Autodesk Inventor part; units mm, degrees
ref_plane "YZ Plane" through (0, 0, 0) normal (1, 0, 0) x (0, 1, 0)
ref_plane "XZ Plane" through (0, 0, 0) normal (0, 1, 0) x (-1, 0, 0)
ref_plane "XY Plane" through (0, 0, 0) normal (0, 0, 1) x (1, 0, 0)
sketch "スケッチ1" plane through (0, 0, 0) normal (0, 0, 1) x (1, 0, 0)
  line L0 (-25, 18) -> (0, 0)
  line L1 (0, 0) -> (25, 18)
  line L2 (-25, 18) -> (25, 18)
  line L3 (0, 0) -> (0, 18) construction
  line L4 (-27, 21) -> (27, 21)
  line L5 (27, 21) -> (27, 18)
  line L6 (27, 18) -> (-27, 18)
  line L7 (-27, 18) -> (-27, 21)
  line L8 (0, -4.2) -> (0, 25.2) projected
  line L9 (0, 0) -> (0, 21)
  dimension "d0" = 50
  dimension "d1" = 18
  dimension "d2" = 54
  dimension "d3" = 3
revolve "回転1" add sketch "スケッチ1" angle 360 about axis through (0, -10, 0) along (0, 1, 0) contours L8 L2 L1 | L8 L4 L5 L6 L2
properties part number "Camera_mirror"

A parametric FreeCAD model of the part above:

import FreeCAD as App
import Part
import Sketcher
Q = App.Units.Quantity


def add_polygon(sketch, points):
    """Adds a closed chain of lines whose ends are joined by coincident constraints."""
    first, n = sketch.GeometryCount, len(points)
    for a, b in zip(points, points[1:] + points[:1]):
        sketch.addGeometry(Part.LineSegment(App.Vector(*a, 0), App.Vector(*b, 0)), False)
    for i in range(n):
        sketch.addConstraint(Sketcher.Constraint("Coincident", first + i, 2, first + (i + 1) % n, 1))

doc = App.newDocument("Part")
body = doc.addObject("PartDesign::Body", "Body")

sketch1 = body.newObject("Sketcher::SketchObject", "Sketch")
sketch1.AttachmentSupport = (doc.getObject("XY_Plane"), [""])
sketch1.MapMode = "FlatFace"
add_polygon(sketch1, [(0, 0), (25, 18), (27, 18), (27, 21), (0, 21)])
sketch1.addConstraint(Sketcher.Constraint("Horizontal", 1))
sketch1.addConstraint(Sketcher.Constraint("Vertical", 2))
sketch1.addConstraint(Sketcher.Constraint("Horizontal", 3))
sketch1.addConstraint(Sketcher.Constraint("Vertical", 4))
sketch1.addConstraint(Sketcher.Constraint("Coincident", 4, 2, -1, 1))
sketch1.addConstraint(Sketcher.Constraint("DistanceY", 2, 1, 2, 2, Q("3 mm")))
sketch1.addConstraint(Sketcher.Constraint("DistanceY", -1, 1, 0, 2, Q("18 mm")))
sketch1.addConstraint(Sketcher.Constraint("DistanceX", 1, 1, 1, 2, Q("2 mm")))
sketch1.addConstraint(Sketcher.Constraint("DistanceX", 3, 2, 3, 1, Q("27 mm")))
revolution = body.newObject("PartDesign::Revolution", "Revolution")
revolution.Profile = sketch1
revolution.ReferenceAxis = (sketch1, ["V_Axis"])
revolution.Angle = 360

doc.recompute()
